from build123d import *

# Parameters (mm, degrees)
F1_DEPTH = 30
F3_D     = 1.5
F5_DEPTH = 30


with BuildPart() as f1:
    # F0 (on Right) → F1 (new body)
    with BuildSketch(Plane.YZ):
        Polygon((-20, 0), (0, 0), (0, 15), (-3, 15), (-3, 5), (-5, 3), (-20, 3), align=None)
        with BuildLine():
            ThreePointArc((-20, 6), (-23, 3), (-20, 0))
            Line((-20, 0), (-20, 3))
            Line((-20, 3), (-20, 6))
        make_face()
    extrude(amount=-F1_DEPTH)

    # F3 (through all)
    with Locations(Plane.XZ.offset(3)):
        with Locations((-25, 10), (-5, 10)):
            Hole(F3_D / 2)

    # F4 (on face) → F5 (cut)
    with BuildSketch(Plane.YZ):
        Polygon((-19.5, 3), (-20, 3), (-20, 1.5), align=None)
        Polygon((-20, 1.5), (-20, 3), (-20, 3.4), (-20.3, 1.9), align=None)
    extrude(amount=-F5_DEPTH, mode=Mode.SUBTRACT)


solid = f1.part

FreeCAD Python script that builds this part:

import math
import FreeCAD as App
import Part
import Sketcher

V = App.Vector

doc = App.newDocument("Part")
params = doc.addObject("Spreadsheet::Sheet", "Params")
for row, (alias, value) in enumerate([
    ("sketch1_radius", "3 mm"),
    ("sketch1_width", "20 mm"),
    ("sketch1_width2", "15 mm"),
    ("sketch1_height", "10 mm"),
    ("pad1_length", "30 mm"),
    ("sketch2_diameter", "1.5 mm"),
    ("hole_diameter", "1.5 mm"),
    ("sketch3_width", "0.5 mm"),
    ("sketch3_height", "0.4 mm"),
    ("sketch3_length", "0.5 mm"),
    ("pocket1_length", "30 mm"),
], start=1):
    params.set(f"A{row}", alias)
    params.set(f"B{row}", "=" + value)
    params.setAlias(f"B{row}", alias)

body = doc.addObject("PartDesign::Body", "Body")

# Sketch on YZ plane
sketch1 = body.newObject("Sketcher::SketchObject", "Sketch")
sketch1.AttachmentSupport = (doc.getObject("YZ_Plane"), [""])
sketch1.MapMode = "FlatFace"
sketch1.addGeometry([
    Part.LineSegment(V(-20, 0, 0), V(0, 0, 0)),  # 0
    Part.LineSegment(V(0, 0, 0), V(0, 15, 0)),  # 1
    Part.LineSegment(V(0, 15, 0), V(-3, 15, 0)),  # 2
    Part.LineSegment(V(-3, 15, 0), V(-3, 5, 0)),  # 3
    Part.LineSegment(V(-3, 5, 0), V(-5, 3, 0)),  # 4
    Part.LineSegment(V(-5, 3, 0), V(-20, 3, 0)),  # 5
    Part.LineSegment(V(-20, 3, 0), V(-20, 6, 0)),  # 6
    Part.ArcOfCircle(Part.Circle(V(-20, 3, 0), V(0, 0, 1), 3), math.radians(90), math.radians(270)),  # 7
], False)
sketch1.addConstraint([
    Sketcher.Constraint("Coincident", 0, 2, 1, 1),
    Sketcher.Constraint("Coincident", 1, 2, 2, 1),
    Sketcher.Constraint("Coincident", 2, 2, 3, 1),
    Sketcher.Constraint("Coincident", 3, 2, 4, 1),
    Sketcher.Constraint("Coincident", 4, 2, 5, 1),
    Sketcher.Constraint("Coincident", 5, 2, 6, 1),
    Sketcher.Constraint("Coincident", 6, 2, 7, 1),
    Sketcher.Constraint("Tangent", 7, 2, 0, 1),
    Sketcher.Constraint("Horizontal", 0),
    Sketcher.Constraint("Vertical", 1),
    Sketcher.Constraint("Horizontal", 2),
    Sketcher.Constraint("Vertical", 3),
    Sketcher.Constraint("Horizontal", 5),
    Sketcher.Constraint("Vertical", 6),
    Sketcher.Constraint("Coincident", 0, 2, -1, 1),
    Sketcher.Constraint("Coincident", 5, 2, 7, 3),
    Sketcher.Constraint("Equal", 5, 1),
    Sketcher.Constraint("Equal", 2, 6),
    Sketcher.Constraint("Radius", 7, 3.0),
    Sketcher.Constraint("DistanceX", 0, 1, 0, 2, 20.0),
    Sketcher.Constraint("DistanceX", 5, 2, 5, 1, 15.0),
    Sketcher.Constraint("DistanceY", 3, 2, 3, 1, 10.0),
])
sketch1.setExpression("Constraints[18]", "Params.sketch1_radius")
sketch1.setExpression("Constraints[19]", "Params.sketch1_width")
sketch1.setExpression("Constraints[20]", "Params.sketch1_width2")
sketch1.setExpression("Constraints[21]", "Params.sketch1_height")
pad1 = body.newObject("PartDesign::Pad", "Pad")
pad1.Profile = sketch1
pad1.setExpression("Length", "Params.pad1_length")
pad1.Reversed = True

# Sketch on XZ plane
sketch2 = body.newObject("Sketcher::SketchObject", "Sketch001")
sketch2.AttachmentSupport = (doc.getObject("XZ_Plane"), [""])
sketch2.MapMode = "FlatFace"
sketch2.AttachmentOffset = App.Placement(V(0, 0, 3), App.Rotation())
sketch2.addGeometry([
    Part.Circle(V(-25, 10, 0), V(0, 0, 1), 0.8),
    Part.Circle(V(-5, 10, 0), V(0, 0, 1), 0.8),
], False)
sketch2.addConstraint([
    Sketcher.Constraint("Equal", 0, 1),
    Sketcher.Constraint("Horizontal", 0, 3, 1, 3),
    Sketcher.Constraint("Diameter", 0, 1.5),
    Sketcher.Constraint("DistanceX", 0, 3, -1, 1, 25.0),
    Sketcher.Constraint("DistanceY", -1, 1, 0, 3, 10.0),
    Sketcher.Constraint("DistanceX", 1, 3, -1, 1, 5.0),
])
sketch2.setExpression("Constraints[2]", "Params.sketch2_diameter")
doc.recompute()
hole = body.newObject("PartDesign::Hole", "Hole")
hole.Profile = sketch2
hole.ThreadType = "None"
hole.setExpression("Diameter", "Params.hole_diameter")
hole.DepthType = "ThroughAll"

# Sketch on YZ plane
sketch3 = body.newObject("Sketcher::SketchObject", "Sketch002")
sketch3.AttachmentSupport = (doc.getObject("YZ_Plane"), [""])
sketch3.MapMode = "FlatFace"
sketch3.addGeometry([
    Part.LineSegment(V(-19.5, 3, 0), V(-20, 3, 0)),  # 0
    Part.LineSegment(V(-20, 3, 0), V(-20, 3.4, 0)),  # 1
    Part.LineSegment(V(-20, 3.4, 0), V(-20.3, 1.9, 0)),  # 2
    Part.LineSegment(V(-20.3, 1.9, 0), V(-20, 1.5, 0)),  # 3
    Part.LineSegment(V(-20, 1.5, 0), V(-19.5, 3, 0)),  # 4
], False)
sketch3.addConstraint([
    Sketcher.Constraint("Coincident", 0, 2, 1, 1),
    Sketcher.Constraint("Coincident", 1, 2, 2, 1),
    Sketcher.Constraint("Coincident", 2, 2, 3, 1),
    Sketcher.Constraint("Coincident", 3, 2, 4, 1),
    Sketcher.Constraint("Coincident", 4, 2, 0, 1),
    Sketcher.Constraint("Horizontal", 0),
    Sketcher.Constraint("Vertical", 1),
    Sketcher.Constraint("Vertical", 1, 2, 3, 2),
    Sketcher.Constraint("DistanceX", 0, 2, 0, 1, 0.5),
    Sketcher.Constraint("DistanceY", 1, 1, 1, 2, 0.4),
    Sketcher.Constraint("DistanceX", 0, 2, -1, 1, 20.0),
    Sketcher.Constraint("DistanceY", -1, 1, 0, 2, 3.0),
    Sketcher.Constraint("Distance", 3, 0.5),
    Sketcher.Constraint("DistanceX", 2, 2, -1, 1, 20.3),
    Sketcher.Constraint("DistanceY", -1, 1, 2, 2, 1.9),
])
sketch3.setExpression("Constraints[8]", "Params.sketch3_width")
sketch3.setExpression("Constraints[9]", "Params.sketch3_height")
sketch3.setExpression("Constraints[12]", "Params.sketch3_length")
pocket1 = body.newObject("PartDesign::Pocket", "Pocket")
pocket1.Profile = sketch3
pocket1.setExpression("Length", "Params.pocket1_length")

doc.recompute()
